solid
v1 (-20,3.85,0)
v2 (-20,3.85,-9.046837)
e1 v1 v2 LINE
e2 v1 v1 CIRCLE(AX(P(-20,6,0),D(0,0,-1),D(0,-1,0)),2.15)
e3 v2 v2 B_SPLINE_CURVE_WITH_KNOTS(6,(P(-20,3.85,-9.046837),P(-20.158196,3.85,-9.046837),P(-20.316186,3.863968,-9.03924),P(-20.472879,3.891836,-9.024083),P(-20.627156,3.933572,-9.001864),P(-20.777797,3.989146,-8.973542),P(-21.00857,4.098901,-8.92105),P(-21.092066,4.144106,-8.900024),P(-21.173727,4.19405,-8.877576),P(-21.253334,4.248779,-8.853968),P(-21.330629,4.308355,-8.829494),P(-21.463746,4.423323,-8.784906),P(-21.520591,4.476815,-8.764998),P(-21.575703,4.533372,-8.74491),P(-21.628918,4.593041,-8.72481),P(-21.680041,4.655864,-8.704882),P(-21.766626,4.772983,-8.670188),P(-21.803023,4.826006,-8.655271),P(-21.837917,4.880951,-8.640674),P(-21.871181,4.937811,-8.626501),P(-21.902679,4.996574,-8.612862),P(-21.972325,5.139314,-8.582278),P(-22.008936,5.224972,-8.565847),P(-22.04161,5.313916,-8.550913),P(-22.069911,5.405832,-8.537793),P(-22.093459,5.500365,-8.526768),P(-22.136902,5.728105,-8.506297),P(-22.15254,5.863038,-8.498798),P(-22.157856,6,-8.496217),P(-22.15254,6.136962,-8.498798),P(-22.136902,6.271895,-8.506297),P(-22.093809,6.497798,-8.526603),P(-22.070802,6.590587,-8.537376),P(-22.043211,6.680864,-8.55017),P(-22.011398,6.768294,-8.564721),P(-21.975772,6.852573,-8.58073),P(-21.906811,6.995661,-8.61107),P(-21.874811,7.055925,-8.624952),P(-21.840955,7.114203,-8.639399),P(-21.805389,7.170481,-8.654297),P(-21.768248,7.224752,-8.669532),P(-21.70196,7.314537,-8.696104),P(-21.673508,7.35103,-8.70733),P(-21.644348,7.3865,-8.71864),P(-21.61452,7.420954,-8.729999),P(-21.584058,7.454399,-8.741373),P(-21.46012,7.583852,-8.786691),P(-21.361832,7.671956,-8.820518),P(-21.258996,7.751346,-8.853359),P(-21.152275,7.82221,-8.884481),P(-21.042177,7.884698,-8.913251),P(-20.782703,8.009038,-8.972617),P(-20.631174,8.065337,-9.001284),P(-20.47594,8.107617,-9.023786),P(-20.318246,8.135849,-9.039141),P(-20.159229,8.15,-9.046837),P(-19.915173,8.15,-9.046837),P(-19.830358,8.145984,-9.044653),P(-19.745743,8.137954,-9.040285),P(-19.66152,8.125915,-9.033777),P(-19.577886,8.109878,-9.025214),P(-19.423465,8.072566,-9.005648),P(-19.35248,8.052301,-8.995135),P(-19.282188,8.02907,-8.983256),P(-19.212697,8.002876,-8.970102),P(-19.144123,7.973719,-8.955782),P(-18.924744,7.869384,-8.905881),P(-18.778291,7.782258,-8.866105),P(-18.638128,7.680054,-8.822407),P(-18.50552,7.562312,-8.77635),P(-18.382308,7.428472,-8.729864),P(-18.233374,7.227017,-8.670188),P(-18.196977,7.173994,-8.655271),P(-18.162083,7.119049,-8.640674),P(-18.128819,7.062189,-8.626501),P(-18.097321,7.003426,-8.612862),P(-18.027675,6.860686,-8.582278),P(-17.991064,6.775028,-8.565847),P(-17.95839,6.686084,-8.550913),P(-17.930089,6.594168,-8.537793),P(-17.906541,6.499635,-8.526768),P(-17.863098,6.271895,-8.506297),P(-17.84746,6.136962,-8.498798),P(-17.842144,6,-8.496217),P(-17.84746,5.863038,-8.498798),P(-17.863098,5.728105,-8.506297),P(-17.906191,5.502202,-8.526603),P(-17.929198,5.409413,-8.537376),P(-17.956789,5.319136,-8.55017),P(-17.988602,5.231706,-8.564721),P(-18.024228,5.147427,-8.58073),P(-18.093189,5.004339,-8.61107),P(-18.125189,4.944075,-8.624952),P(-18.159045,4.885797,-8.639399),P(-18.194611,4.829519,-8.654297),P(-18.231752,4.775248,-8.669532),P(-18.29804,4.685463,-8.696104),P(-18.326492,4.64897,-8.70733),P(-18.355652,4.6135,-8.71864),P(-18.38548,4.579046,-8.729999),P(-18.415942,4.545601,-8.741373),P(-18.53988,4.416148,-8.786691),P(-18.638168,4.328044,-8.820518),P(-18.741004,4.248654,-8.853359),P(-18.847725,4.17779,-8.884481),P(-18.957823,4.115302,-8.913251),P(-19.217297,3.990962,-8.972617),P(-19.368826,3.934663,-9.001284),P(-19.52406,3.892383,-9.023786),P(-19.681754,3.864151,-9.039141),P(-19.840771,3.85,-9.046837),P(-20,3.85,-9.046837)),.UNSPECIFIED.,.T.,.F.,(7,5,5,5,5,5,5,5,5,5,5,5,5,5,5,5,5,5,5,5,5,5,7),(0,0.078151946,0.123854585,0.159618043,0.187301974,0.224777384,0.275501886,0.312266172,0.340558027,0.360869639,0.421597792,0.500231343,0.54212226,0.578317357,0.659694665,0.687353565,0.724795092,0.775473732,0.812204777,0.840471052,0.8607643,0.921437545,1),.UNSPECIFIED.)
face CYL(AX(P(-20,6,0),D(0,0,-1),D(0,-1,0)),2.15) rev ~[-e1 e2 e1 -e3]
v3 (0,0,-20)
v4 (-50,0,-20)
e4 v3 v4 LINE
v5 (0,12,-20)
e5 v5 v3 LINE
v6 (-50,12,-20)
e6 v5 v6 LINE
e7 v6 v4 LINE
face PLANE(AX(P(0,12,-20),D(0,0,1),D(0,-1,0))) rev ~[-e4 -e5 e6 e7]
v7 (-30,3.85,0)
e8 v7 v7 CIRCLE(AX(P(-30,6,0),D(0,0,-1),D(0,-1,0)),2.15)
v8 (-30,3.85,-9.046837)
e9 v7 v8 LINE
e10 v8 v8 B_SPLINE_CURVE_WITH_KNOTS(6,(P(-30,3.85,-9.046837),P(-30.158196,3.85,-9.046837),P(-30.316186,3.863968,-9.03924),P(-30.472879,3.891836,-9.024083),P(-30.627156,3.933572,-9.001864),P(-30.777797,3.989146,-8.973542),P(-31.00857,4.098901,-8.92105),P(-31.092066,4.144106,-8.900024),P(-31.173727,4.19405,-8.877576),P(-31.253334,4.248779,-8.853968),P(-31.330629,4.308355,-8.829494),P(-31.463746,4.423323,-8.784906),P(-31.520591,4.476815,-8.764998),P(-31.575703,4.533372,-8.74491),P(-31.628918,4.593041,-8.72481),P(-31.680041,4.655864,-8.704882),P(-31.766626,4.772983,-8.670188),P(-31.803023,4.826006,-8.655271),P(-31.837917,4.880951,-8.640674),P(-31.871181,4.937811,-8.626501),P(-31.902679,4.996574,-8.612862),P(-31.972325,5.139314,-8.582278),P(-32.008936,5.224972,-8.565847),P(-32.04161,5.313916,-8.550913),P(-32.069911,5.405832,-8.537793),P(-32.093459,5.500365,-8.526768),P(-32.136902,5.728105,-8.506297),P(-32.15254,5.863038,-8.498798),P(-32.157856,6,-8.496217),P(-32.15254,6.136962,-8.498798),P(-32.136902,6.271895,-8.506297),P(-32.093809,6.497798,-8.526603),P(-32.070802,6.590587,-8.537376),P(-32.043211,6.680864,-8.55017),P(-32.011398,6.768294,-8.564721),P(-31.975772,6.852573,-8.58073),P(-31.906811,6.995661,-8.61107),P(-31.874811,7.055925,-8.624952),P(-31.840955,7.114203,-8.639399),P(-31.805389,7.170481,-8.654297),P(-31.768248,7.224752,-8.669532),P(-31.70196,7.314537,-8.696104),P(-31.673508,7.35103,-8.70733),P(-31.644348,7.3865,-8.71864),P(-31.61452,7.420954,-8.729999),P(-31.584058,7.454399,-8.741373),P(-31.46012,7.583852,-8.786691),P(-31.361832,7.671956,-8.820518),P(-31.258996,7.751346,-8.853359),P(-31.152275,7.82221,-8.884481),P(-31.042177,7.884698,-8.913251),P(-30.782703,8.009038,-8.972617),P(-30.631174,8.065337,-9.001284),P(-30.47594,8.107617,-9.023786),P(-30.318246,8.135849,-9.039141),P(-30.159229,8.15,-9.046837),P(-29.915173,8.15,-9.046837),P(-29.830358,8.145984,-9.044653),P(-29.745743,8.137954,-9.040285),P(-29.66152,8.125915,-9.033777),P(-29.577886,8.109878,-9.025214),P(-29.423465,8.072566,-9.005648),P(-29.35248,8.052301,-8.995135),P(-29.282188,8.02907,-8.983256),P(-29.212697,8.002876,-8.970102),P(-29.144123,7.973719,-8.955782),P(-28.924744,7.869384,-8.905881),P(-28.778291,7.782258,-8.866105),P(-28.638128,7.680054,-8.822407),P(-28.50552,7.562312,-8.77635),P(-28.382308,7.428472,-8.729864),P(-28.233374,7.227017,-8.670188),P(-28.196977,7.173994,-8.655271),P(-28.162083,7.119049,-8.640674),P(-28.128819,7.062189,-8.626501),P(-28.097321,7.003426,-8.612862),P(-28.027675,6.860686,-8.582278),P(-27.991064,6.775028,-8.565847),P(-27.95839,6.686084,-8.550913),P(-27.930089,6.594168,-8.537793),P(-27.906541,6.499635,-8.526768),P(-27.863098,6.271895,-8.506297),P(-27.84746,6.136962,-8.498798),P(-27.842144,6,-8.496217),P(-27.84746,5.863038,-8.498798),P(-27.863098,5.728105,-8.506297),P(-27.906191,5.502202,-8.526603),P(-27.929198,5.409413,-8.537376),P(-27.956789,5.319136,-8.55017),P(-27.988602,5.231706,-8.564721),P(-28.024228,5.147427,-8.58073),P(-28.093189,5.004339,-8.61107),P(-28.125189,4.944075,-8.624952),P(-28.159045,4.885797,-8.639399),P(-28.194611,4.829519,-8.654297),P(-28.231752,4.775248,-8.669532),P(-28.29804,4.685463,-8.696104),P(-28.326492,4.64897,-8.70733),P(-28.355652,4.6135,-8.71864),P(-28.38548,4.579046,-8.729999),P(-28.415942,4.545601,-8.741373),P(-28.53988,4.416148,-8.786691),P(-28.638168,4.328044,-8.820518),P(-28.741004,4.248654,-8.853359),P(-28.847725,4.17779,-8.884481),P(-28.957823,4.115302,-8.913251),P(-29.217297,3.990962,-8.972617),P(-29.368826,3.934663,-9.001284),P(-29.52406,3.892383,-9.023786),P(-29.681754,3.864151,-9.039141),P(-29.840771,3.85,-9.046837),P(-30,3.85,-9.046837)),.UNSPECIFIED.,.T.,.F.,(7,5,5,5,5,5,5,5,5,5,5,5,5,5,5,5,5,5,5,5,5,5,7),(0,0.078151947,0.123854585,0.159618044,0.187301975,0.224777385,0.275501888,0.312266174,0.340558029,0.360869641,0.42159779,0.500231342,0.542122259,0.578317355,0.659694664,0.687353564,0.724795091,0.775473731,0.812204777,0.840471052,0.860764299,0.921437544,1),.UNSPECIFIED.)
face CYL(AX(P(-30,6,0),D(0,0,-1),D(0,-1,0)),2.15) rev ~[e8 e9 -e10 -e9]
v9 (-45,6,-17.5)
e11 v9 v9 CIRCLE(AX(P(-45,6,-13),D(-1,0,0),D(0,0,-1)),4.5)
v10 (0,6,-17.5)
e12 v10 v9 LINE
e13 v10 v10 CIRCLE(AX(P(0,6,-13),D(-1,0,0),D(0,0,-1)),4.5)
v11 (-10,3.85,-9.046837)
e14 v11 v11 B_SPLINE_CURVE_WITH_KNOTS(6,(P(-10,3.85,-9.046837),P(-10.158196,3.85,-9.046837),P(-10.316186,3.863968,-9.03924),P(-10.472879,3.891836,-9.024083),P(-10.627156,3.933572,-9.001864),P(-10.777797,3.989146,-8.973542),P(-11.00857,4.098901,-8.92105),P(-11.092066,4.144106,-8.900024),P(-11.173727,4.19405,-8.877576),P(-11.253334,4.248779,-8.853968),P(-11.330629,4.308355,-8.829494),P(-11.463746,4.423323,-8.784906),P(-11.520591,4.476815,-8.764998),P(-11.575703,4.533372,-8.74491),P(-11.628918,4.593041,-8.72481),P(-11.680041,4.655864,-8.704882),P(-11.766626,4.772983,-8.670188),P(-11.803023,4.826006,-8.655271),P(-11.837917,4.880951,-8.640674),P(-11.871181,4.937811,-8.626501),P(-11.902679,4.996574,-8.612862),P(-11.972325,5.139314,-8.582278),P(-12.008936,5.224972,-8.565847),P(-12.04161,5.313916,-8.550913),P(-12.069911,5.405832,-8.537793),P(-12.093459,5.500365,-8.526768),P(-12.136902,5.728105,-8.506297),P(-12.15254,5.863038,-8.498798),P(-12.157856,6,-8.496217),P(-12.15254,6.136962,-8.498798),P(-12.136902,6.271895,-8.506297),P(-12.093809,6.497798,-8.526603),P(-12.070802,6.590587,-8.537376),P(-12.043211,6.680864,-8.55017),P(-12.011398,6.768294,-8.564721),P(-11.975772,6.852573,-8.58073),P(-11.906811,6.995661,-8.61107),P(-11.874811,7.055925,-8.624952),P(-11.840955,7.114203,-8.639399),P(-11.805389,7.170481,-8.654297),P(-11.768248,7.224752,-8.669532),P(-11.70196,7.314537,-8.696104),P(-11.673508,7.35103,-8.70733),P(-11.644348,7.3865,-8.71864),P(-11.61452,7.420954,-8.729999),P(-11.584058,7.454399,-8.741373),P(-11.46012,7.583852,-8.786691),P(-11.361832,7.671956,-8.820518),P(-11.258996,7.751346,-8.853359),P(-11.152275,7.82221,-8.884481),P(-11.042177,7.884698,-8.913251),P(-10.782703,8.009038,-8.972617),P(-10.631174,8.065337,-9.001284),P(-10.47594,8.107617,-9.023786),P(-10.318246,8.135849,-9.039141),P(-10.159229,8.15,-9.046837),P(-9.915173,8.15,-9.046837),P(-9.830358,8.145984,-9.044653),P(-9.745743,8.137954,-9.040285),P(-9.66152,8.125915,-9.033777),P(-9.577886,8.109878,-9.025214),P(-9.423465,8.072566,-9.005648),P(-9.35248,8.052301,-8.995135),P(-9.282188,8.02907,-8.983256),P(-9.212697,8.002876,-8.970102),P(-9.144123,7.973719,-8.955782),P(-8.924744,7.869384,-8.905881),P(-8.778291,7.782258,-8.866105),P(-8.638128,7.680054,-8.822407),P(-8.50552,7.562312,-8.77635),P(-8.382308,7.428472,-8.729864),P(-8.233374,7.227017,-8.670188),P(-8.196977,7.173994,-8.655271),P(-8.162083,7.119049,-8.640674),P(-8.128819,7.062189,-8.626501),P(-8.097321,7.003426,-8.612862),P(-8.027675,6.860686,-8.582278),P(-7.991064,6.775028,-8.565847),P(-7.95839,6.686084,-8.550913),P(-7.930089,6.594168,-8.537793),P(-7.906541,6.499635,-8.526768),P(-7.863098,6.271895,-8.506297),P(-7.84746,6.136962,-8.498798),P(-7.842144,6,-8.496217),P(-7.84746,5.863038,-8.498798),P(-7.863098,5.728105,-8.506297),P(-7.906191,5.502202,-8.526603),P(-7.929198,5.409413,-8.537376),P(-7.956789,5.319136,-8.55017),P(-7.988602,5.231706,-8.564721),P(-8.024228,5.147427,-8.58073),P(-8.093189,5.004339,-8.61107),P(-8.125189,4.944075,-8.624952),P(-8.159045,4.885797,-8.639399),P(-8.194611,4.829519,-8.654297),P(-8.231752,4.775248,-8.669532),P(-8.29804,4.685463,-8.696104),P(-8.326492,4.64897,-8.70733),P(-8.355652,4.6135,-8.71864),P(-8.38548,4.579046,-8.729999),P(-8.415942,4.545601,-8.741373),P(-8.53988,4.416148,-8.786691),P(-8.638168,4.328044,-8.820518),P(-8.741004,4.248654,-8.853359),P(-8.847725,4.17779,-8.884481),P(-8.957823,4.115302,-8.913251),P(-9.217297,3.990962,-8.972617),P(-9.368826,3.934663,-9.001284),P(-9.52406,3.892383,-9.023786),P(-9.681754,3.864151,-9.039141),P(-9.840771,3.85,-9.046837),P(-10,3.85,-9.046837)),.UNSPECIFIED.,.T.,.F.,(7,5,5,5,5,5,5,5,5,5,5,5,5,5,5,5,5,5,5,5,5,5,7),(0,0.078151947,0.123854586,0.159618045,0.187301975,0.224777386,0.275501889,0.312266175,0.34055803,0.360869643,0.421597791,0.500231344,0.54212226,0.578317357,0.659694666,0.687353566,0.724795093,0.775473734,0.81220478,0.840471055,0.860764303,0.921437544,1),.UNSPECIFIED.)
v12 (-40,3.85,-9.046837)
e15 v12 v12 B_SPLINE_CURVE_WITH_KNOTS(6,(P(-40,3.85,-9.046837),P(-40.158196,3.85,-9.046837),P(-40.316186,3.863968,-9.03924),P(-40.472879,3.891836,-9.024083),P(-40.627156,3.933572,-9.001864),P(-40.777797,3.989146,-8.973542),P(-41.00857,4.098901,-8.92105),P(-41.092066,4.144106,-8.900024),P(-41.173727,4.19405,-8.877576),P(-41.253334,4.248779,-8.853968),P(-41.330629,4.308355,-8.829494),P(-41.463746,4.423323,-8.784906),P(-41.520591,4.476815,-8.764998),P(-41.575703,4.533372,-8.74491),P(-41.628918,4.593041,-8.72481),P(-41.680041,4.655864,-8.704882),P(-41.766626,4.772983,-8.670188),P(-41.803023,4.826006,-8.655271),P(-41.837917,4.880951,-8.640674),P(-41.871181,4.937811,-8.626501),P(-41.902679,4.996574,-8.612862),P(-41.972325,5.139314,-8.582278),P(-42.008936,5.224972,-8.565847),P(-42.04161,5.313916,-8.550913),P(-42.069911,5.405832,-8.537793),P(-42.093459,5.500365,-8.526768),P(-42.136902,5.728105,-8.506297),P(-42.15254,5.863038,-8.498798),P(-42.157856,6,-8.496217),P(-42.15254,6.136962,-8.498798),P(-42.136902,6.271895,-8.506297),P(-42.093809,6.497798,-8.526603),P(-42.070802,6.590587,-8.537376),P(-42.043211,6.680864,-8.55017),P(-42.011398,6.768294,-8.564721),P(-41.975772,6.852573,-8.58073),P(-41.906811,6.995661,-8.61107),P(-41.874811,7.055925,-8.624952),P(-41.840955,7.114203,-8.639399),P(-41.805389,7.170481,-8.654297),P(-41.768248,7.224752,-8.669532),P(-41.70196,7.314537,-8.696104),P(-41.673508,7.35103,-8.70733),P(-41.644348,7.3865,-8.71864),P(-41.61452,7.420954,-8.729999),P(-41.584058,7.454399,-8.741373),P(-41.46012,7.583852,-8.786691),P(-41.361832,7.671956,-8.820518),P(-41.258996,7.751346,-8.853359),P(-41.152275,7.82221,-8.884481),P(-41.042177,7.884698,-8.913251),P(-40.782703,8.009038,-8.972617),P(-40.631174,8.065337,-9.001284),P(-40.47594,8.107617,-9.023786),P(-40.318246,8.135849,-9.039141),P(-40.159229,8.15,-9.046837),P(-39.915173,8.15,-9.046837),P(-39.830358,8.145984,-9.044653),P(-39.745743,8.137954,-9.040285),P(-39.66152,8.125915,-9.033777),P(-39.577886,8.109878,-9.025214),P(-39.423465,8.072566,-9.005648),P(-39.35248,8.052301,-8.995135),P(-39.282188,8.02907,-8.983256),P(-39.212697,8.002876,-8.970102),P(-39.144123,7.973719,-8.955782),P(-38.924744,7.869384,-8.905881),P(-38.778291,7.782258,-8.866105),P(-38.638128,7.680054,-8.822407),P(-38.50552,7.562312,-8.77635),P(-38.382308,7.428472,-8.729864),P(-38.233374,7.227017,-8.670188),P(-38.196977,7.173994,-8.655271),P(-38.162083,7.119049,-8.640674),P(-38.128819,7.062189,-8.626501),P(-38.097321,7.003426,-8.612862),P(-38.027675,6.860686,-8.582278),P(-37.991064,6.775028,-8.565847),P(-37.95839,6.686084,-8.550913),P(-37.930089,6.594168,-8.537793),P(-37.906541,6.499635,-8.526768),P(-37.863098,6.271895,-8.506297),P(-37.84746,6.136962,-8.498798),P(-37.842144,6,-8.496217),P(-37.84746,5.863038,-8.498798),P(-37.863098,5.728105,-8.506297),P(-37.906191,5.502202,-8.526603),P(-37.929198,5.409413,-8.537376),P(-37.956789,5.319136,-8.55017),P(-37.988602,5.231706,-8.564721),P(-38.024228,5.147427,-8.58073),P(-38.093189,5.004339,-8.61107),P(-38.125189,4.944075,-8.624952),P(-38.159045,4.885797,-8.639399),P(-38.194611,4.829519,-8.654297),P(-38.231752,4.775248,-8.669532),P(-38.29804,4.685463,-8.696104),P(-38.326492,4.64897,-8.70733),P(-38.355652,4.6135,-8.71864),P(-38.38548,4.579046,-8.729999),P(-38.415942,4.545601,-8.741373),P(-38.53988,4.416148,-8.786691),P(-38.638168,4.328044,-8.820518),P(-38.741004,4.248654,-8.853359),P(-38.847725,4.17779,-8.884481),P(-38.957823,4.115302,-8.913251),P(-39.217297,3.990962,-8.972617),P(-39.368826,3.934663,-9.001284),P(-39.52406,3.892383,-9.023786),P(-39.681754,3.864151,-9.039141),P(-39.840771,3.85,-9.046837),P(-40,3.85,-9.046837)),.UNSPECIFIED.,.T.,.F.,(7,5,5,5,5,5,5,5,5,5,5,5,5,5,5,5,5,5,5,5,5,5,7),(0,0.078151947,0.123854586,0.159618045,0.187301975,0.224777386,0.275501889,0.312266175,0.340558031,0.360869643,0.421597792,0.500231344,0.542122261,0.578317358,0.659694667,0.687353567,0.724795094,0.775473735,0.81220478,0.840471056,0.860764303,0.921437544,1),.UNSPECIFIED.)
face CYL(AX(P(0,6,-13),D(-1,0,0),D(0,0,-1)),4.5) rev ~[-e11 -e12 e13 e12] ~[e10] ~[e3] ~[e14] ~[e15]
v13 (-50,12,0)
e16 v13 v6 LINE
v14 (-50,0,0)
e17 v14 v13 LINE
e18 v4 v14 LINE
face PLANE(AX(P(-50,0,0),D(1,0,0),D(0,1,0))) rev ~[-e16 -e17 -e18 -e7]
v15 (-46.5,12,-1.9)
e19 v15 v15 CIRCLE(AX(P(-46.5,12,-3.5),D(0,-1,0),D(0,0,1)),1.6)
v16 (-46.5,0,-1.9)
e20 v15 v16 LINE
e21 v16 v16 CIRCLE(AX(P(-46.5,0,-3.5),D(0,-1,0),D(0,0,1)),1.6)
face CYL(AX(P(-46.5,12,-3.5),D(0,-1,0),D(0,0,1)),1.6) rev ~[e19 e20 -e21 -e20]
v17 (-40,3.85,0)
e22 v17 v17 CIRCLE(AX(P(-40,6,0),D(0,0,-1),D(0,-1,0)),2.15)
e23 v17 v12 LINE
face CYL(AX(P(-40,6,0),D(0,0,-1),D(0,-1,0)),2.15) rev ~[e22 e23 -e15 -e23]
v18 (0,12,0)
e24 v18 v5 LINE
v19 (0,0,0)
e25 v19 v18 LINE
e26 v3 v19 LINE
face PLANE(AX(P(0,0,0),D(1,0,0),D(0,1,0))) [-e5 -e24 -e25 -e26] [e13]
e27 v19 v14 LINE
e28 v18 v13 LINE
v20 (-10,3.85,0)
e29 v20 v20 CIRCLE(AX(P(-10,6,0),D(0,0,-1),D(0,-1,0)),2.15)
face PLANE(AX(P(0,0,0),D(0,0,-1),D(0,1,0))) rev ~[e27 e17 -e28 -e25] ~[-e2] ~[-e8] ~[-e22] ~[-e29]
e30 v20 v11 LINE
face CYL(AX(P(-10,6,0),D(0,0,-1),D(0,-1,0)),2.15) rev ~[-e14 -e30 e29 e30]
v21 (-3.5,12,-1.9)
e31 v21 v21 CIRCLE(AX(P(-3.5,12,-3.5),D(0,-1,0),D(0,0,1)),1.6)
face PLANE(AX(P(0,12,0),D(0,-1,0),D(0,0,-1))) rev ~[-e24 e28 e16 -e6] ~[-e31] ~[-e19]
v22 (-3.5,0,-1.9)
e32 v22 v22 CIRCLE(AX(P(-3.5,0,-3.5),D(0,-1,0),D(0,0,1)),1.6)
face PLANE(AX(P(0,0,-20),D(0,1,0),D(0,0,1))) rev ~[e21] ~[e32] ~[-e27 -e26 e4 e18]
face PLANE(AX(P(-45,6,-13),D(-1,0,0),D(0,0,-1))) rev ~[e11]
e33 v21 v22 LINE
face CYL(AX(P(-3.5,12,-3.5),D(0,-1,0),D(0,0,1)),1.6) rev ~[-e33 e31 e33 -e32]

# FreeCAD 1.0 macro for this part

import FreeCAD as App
import Part
import Sketcher
from FreeCAD import Vector

doc = App.newDocument("Part")
body = doc.addObject("PartDesign::Body", "Body")

# Sketch on YZ plane
sketch1 = body.newObject("Sketcher::SketchObject", "Sketch")
sketch1.AttachmentSupport = (doc.getObject("YZ_Plane"), [""])
sketch1.MapMode = "FlatFace"
sketch1.addGeometry([
    Part.LineSegment(Vector(12, 0, 0), Vector(0, 0, 0)),
    Part.LineSegment(Vector(0, 0, 0), Vector(0, -20, 0)),
    Part.LineSegment(Vector(0, -20, 0), Vector(12, -20, 0)),
    Part.LineSegment(Vector(12, -20, 0), Vector(12, 0, 0)),
], False)
sketch1.addConstraint([
    Sketcher.Constraint("Coincident", 0, 2, 1, 1),
    Sketcher.Constraint("Coincident", 1, 2, 2, 1),
    Sketcher.Constraint("Coincident", 2, 2, 3, 1),
    Sketcher.Constraint("Coincident", 3, 2, 0, 1),
    Sketcher.Constraint("Horizontal", 0),
    Sketcher.Constraint("Vertical", 1),
    Sketcher.Constraint("Horizontal", 2),
    Sketcher.Constraint("Vertical", 3),
    Sketcher.Constraint("Coincident", 0, 2, -1, 1),
    Sketcher.Constraint("DistanceX", 0, 2, 0, 1, 12.0),
    Sketcher.Constraint("DistanceY", 1, 2, 1, 1, 20.0),
])
pad1 = body.newObject("PartDesign::Pad", "Pad")
pad1.Profile = sketch1
pad1.Length = 50
pad1.Reversed = True

# Sketch on YZ plane
sketch2 = body.newObject("Sketcher::SketchObject", "Sketch001")
sketch2.AttachmentSupport = (doc.getObject("YZ_Plane"), [""])
sketch2.MapMode = "FlatFace"
sketch2.addGeometry(Part.Circle(Vector(6, -13, 0), Vector(0, 0, 1), 4.5), False)
sketch2.addConstraint([
    Sketcher.Constraint("Diameter", 0, 9.0),
    Sketcher.Constraint("DistanceX", -1, 1, 0, 3, 6.0),
    Sketcher.Constraint("DistanceY", 0, 3, -1, 1, 13.0),
])
doc.recompute()
hole = body.newObject("PartDesign::Hole", "Hole")
hole.Profile = sketch2
hole.ThreadType = "None"
hole.Diameter = 9
hole.DepthType = "Dimension"
hole.Depth = 45
hole.DrillPoint = "Flat"

# Sketch on XZ plane
sketch3 = body.newObject("Sketcher::SketchObject", "Sketch002")
sketch3.AttachmentSupport = (doc.getObject("XZ_Plane"), [""])
sketch3.MapMode = "FlatFace"
sketch3.AttachmentOffset = App.Placement(Vector(0, 0, -12), App.Rotation())
sketch3.addGeometry(Part.Circle(Vector(-3.5, -3.5, 0), Vector(0, 0, 1), 1.6), False)
sketch3.addConstraint([
    Sketcher.Constraint("Diameter", 0, 3.2),
    Sketcher.Constraint("DistanceX", 0, 3, -1, 1, 3.5),
    Sketcher.Constraint("DistanceY", 0, 3, -1, 1, 3.5),
])
doc.recompute()
hole2 = body.newObject("PartDesign::Hole", "Hole001")
hole2.Profile = sketch3
hole2.ThreadType = "None"
hole2.Diameter = 3.2
hole2.DepthType = "ThroughAll"
hole2.Reversed = True
doc.recompute()

linearpattern = body.newObject("PartDesign::LinearPattern", "LinearPattern")
linearpattern.Originals = [hole2]
linearpattern.Direction = (doc.getObject("X_Axis"), [""])
linearpattern.Mode = "offset"
linearpattern.Offset = 43
linearpattern.Occurrences = 2
linearpattern.Reversed = True
body.Tip = linearpattern

# Sketch on XY plane
sketch4 = body.newObject("Sketcher::SketchObject", "Sketch003")
sketch4.AttachmentSupport = (doc.getObject("XY_Plane"), [""])
sketch4.MapMode = "FlatFace"
sketch4.addGeometry(Part.Circle(Vector(-10, 6, 0), Vector(0, 0, 1), 2.1), False)
sketch4.addConstraint([
    Sketcher.Constraint("Diameter", 0, 4.3),
    Sketcher.Constraint("DistanceX", 0, 3, -1, 1, 10.0),
    Sketcher.Constraint("DistanceY", -1, 1, 0, 3, 6.0),
])
doc.recompute()
hole3 = body.newObject("PartDesign::Hole", "Hole002")
hole3.Profile = sketch4
hole3.ThreadType = "None"
hole3.Diameter = 4.3
hole3.DepthType = "Dimension"
hole3.Depth = 10
hole3.DrillPoint = "Flat"
doc.recompute()

linearpattern2 = body.newObject("PartDesign::LinearPattern", "LinearPattern001")
linearpattern2.Originals = [hole3]
linearpattern2.Direction = (doc.getObject("X_Axis"), [""])
linearpattern2.Mode = "offset"
linearpattern2.Offset = 10
linearpattern2.Occurrences = 4
linearpattern2.Reversed = True
body.Tip = linearpattern2

doc.recompute()
